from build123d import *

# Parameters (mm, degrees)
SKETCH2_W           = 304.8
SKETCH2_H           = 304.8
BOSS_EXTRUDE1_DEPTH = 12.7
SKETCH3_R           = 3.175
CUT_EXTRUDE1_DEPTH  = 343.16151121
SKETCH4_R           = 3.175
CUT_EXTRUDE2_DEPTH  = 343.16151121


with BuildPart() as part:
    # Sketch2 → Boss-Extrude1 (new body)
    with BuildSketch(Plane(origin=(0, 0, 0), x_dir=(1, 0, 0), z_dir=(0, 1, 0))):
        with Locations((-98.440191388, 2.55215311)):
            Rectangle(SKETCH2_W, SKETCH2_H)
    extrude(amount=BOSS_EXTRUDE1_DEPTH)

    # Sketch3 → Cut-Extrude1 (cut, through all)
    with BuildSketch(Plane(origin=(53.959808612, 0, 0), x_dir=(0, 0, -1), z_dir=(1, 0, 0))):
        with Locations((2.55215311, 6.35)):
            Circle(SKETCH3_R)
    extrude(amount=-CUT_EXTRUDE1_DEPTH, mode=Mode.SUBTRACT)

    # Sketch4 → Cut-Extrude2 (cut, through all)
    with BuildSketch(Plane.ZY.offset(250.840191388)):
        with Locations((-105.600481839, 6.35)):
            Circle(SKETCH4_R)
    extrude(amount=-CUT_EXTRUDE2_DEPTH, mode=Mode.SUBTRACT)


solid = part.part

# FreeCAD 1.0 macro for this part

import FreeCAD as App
import Part
import Sketcher
from FreeCAD import Vector
Q = App.Units.Quantity

doc = App.newDocument("Part")
body = doc.addObject("PartDesign::Body", "Body")

# Sketch on XZ plane
sketch1 = body.newObject("Sketcher::SketchObject", "Sketch")
sketch1.AttachmentSupport = (doc.getObject("XZ_Plane"), [""])
sketch1.MapMode = "FlatFace"
sketch1.addGeometry(Part.LineSegment(Vector(-251, -155, 0), Vector(-251, 150, 0)), False)
sketch1.addGeometry(Part.LineSegment(Vector(-251, 150, 0), Vector(54, 150, 0)), False)
sketch1.addGeometry(Part.LineSegment(Vector(54, 150, 0), Vector(54, -155, 0)), False)
sketch1.addGeometry(Part.LineSegment(Vector(54, -155, 0), Vector(-251, -155, 0)), False)
sketch1.addConstraint(Sketcher.Constraint("Coincident", 0, 2, 1, 1))
sketch1.addConstraint(Sketcher.Constraint("Coincident", 1, 2, 2, 1))
sketch1.addConstraint(Sketcher.Constraint("Coincident", 2, 2, 3, 1))
sketch1.addConstraint(Sketcher.Constraint("Coincident", 3, 2, 0, 1))
sketch1.addConstraint(Sketcher.Constraint("Vertical", 0))
sketch1.addConstraint(Sketcher.Constraint("Horizontal", 1))
sketch1.addConstraint(Sketcher.Constraint("Vertical", 2))
sketch1.addConstraint(Sketcher.Constraint("Horizontal", 3))
sketch1.addConstraint(Sketcher.Constraint("Equal", 3, 0))
sketch1.addConstraint(Sketcher.Constraint("DistanceX", 1, 1, 1, 2, Q("12 in")))
sketch1.addConstraint(Sketcher.Constraint("DistanceX", 0, 2, -1, 1, Q("250.840191 mm")))
sketch1.addConstraint(Sketcher.Constraint("DistanceY", -1, 1, 0, 2, Q("149.847847 mm")))
pad1 = body.newObject("PartDesign::Pad", "Pad")
pad1.Profile = sketch1
pad1.Length = Q("0.5 in")
pad1.Reversed = True

# Sketch on YZ plane
sketch2 = body.newObject("Sketcher::SketchObject", "Sketch001")
sketch2.AttachmentSupport = (doc.getObject("YZ_Plane"), [""])
sketch2.MapMode = "FlatFace"
sketch2.AttachmentOffset = App.Placement(Vector(0, 0, 53.959809), App.Rotation())
sketch2.addGeometry(Part.Circle(Vector(6.3, -2.6, 0), Vector(0, 0, 1), 3.2), False)
sketch2.addConstraint(Sketcher.Constraint("Diameter", 0, Q("0.25 in")))
sketch2.addConstraint(Sketcher.Constraint("DistanceX", -1, 1, 0, 3, Q("0.25 in")))
sketch2.addConstraint(Sketcher.Constraint("DistanceY", 0, 3, -1, 1, Q("2.552153 mm")))
pocket1 = body.newObject("PartDesign::Pocket", "Pocket")
pocket1.Profile = sketch2
pocket1.Type = "ThroughAll"

# Sketch on YZ plane
sketch3 = body.newObject("Sketcher::SketchObject", "Sketch002")
sketch3.AttachmentSupport = (doc.getObject("YZ_Plane"), [""])
sketch3.MapMode = "FlatFace"
sketch3.AttachmentOffset = App.Placement(Vector(0, 0, -250.840191), App.Rotation())
sketch3.addGeometry(Part.Circle(Vector(6.35, -105.600482, 0), Vector(0, 0, 1), 3.175), False)
sketch3.addConstraint(Sketcher.Constraint("Diameter", 0, Q("0.25 in")))
sketch3.addConstraint(Sketcher.Constraint("DistanceX", -1, 1, 0, 3, Q("0.25 in")))
sketch3.addConstraint(Sketcher.Constraint("DistanceY", 0, 3, -1, 1, Q("105.600482 mm")))
pocket2 = body.newObject("PartDesign::Pocket", "Pocket001")
pocket2.Profile = sketch3
pocket2.Type = "ThroughAll"
pocket2.Reversed = True

doc.recompute()
